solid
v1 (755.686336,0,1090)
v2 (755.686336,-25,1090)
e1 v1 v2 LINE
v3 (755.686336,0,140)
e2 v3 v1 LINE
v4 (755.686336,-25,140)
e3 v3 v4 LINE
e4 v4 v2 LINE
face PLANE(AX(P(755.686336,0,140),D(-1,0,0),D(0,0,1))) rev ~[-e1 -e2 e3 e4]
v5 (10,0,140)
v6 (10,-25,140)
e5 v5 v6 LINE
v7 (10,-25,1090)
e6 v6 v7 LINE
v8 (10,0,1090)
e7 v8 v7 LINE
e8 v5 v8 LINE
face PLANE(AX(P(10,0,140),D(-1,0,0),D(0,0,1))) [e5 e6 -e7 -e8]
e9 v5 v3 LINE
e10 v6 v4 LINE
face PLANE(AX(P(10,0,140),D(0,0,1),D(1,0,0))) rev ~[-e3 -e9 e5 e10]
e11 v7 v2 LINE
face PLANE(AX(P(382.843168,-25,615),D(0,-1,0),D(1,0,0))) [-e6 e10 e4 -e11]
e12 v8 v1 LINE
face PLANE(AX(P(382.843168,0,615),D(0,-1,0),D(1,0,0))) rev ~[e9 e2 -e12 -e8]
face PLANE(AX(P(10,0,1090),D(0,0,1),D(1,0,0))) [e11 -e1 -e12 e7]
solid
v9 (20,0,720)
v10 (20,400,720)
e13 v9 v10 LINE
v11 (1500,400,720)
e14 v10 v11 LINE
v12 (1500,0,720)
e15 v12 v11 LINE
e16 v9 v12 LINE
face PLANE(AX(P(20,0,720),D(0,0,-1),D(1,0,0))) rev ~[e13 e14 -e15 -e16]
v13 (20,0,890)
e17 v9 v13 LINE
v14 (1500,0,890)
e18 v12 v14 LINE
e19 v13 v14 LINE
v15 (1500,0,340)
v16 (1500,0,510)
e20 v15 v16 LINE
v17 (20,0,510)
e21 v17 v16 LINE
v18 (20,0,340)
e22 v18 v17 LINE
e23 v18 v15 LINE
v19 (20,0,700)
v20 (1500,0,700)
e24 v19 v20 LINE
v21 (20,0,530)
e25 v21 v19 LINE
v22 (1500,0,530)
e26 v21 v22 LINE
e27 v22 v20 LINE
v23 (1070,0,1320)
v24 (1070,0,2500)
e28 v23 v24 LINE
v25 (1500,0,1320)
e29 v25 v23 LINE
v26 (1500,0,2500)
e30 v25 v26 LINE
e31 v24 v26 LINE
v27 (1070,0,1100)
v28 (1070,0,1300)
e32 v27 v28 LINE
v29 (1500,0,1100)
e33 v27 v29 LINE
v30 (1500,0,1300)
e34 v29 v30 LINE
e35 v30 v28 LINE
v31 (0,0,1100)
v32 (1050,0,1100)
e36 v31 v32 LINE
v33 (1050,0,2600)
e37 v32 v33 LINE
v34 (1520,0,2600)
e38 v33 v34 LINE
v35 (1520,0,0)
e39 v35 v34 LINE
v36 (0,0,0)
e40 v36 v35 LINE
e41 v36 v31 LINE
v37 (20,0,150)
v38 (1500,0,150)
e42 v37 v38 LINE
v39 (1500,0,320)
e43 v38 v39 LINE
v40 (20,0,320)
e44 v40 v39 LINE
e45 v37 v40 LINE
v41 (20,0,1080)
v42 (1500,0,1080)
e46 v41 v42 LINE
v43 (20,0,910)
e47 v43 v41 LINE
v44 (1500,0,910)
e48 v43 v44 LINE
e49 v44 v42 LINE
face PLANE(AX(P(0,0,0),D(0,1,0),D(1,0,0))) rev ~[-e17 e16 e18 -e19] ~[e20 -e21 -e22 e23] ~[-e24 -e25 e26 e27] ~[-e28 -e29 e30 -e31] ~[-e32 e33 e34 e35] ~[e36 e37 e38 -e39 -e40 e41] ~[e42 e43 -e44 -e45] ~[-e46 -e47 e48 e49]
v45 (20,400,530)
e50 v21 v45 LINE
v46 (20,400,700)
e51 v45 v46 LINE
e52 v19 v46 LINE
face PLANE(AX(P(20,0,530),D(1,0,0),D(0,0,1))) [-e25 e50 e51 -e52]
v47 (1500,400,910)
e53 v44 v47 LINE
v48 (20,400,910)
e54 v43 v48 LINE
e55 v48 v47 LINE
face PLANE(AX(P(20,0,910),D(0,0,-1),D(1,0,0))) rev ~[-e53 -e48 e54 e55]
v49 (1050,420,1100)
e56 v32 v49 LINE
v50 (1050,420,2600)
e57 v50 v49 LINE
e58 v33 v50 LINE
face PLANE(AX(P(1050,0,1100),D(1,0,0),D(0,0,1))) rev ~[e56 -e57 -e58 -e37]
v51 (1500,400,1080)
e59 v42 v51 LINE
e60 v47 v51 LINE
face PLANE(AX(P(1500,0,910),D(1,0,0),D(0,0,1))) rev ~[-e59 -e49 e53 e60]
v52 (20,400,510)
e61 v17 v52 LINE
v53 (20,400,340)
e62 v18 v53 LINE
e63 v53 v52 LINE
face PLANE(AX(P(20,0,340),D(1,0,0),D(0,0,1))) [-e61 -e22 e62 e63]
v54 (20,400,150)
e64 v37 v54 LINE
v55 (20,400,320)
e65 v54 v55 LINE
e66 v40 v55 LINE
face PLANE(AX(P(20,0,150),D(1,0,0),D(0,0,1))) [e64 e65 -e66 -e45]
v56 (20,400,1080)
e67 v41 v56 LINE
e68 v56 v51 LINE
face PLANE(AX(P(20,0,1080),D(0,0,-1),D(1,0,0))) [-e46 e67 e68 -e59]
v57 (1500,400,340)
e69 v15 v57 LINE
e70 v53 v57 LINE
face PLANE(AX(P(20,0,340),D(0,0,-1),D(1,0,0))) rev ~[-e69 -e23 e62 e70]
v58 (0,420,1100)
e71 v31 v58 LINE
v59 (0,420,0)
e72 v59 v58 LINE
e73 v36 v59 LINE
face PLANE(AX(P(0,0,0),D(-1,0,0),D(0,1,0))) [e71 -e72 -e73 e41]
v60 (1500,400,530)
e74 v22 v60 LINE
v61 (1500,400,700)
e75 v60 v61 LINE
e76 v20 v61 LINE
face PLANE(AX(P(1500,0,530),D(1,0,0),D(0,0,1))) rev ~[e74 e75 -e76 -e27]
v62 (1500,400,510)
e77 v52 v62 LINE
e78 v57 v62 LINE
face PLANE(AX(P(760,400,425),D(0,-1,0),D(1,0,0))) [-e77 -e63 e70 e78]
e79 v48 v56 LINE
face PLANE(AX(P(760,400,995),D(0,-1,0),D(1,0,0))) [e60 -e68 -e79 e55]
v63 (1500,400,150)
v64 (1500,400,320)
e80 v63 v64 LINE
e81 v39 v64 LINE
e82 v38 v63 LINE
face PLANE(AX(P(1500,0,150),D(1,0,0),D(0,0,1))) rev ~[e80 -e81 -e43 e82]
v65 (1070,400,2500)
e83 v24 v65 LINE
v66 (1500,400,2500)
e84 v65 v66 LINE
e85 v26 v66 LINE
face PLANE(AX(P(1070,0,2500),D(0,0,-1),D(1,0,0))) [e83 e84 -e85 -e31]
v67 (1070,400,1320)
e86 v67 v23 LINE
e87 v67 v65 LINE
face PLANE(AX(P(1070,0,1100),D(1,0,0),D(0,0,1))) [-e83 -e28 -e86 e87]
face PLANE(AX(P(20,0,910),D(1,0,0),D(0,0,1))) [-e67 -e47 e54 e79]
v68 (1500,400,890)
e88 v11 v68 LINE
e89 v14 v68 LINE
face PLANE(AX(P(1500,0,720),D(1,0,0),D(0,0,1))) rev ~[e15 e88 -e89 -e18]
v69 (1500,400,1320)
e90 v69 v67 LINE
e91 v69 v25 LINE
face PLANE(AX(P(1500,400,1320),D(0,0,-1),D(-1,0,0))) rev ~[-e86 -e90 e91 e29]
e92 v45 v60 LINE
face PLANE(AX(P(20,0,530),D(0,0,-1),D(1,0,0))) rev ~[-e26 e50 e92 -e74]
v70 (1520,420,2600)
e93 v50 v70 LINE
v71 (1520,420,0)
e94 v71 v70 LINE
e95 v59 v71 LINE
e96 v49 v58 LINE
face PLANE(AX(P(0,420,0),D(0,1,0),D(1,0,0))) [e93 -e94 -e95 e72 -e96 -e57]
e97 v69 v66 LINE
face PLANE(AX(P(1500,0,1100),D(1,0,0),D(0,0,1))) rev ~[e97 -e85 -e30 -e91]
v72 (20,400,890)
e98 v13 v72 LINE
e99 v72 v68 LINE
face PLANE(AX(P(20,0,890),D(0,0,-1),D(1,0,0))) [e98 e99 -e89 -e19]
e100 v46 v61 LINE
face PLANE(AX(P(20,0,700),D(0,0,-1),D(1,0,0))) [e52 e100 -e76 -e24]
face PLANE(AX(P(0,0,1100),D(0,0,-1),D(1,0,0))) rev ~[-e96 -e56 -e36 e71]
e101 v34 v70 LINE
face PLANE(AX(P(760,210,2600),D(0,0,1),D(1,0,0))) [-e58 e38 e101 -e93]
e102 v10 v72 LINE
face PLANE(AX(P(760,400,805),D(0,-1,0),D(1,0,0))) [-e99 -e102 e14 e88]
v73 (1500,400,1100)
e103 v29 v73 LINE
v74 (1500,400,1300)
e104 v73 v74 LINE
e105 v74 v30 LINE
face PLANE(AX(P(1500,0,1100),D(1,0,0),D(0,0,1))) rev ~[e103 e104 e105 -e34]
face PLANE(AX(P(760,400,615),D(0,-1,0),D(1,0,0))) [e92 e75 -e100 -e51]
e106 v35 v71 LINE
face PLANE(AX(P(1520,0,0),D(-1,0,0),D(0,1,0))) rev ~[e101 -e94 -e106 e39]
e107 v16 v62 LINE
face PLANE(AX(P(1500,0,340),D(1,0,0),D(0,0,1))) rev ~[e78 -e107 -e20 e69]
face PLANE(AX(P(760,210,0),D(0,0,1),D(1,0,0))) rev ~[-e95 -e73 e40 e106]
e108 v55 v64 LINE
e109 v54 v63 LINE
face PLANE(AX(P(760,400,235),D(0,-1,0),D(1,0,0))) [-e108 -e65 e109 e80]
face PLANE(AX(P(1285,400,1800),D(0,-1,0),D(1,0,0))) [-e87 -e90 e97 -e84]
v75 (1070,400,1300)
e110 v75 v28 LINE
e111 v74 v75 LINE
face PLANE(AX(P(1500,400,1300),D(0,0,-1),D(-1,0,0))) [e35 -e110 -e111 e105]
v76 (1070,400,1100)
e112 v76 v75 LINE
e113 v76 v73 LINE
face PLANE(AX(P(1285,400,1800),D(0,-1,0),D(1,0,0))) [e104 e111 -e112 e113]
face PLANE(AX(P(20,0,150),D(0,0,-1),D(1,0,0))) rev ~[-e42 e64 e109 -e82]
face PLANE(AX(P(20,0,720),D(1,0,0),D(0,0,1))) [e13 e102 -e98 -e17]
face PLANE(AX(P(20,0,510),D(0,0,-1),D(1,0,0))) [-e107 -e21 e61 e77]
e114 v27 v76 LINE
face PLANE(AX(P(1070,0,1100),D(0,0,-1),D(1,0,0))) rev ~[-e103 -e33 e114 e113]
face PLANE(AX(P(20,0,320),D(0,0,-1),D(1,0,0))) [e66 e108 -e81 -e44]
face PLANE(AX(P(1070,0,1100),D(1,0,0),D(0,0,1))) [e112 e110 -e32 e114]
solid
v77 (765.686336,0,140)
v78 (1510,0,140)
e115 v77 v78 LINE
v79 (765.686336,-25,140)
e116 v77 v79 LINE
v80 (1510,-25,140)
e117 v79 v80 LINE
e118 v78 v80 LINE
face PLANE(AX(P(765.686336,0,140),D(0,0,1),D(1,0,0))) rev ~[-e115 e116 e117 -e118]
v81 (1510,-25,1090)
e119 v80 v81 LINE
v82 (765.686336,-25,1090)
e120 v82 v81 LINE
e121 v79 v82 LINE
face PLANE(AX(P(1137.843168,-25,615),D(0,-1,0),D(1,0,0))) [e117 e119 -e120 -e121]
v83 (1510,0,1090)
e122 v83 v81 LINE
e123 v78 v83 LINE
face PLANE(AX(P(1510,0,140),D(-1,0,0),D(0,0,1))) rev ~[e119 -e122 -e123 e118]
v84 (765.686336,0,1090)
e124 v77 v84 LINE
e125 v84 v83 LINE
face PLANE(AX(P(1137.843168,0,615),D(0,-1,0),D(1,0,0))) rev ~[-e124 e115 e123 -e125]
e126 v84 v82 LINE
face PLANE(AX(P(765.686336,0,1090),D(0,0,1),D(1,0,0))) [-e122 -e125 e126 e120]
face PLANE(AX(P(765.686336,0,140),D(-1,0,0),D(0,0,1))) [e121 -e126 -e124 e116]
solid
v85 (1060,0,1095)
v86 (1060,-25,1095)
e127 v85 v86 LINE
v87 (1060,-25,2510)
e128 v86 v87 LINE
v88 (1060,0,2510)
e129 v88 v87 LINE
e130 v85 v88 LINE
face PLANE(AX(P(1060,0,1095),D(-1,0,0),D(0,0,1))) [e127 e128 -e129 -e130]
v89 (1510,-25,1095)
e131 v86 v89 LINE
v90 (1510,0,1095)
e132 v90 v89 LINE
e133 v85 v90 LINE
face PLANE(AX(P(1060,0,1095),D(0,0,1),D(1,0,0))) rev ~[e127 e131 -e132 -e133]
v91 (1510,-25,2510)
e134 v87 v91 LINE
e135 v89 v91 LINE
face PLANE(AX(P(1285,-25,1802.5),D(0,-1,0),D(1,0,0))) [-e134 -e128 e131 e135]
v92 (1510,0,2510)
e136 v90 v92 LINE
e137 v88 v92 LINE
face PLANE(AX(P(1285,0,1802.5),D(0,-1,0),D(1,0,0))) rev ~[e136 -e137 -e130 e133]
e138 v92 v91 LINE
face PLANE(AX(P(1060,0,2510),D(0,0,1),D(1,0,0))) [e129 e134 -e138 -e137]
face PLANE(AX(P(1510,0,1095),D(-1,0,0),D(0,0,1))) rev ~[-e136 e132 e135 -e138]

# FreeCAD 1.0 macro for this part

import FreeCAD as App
import Part
import Sketcher
Q = App.Units.Quantity

doc = App.newDocument("Part")
body = doc.addObject("PartDesign::Body", "Body")

# Sketch on XY plane
sketch1 = body.newObject("Sketcher::SketchObject", "Sketch")
sketch1.AttachmentSupport = (doc.getObject("XY_Plane"), [""])
sketch1.MapMode = "FlatFace"
sketch1.addGeometry([
    Part.LineSegment(App.Vector(0, 420, 0), App.Vector(0, 0, 0)),
    Part.LineSegment(App.Vector(0, 0, 0), App.Vector(1520, 0, 0)),
    Part.LineSegment(App.Vector(1520, 0, 0), App.Vector(1520, 420, 0)),
    Part.LineSegment(App.Vector(1520, 420, 0), App.Vector(0, 420, 0)),
], False)
sketch1.addConstraint([
    Sketcher.Constraint("Coincident", 0, 2, 1, 1),
    Sketcher.Constraint("Coincident", 1, 2, 2, 1),
    Sketcher.Constraint("Coincident", 2, 2, 3, 1),
    Sketcher.Constraint("Coincident", 3, 2, 0, 1),
    Sketcher.Constraint("Vertical", 0),
    Sketcher.Constraint("Horizontal", 1),
    Sketcher.Constraint("Vertical", 2),
    Sketcher.Constraint("Horizontal", 3),
    Sketcher.Constraint("Coincident", 0, 2, -1, 1),
    Sketcher.Constraint("DistanceX", 1, 1, 1, 2, Q("1520 mm")),
    Sketcher.Constraint("DistanceY", 0, 2, 0, 1, Q("420 mm")),
])
pad1 = body.newObject("PartDesign::Pad", "Pad")
pad1.Profile = sketch1
pad1.Length = 2600

# Sketch on XZ plane
sketch2 = body.newObject("Sketcher::SketchObject", "Sketch001")
sketch2.AttachmentSupport = (doc.getObject("XZ_Plane"), [""])
sketch2.MapMode = "FlatFace"
sketch2.addGeometry([
    Part.LineSegment(App.Vector(0, 2600, 0), App.Vector(0, 1100, 0)),
    Part.LineSegment(App.Vector(0, 1100, 0), App.Vector(1050, 1100, 0)),
    Part.LineSegment(App.Vector(1050, 1100, 0), App.Vector(1050, 2600, 0)),
    Part.LineSegment(App.Vector(1050, 2600, 0), App.Vector(0, 2600, 0)),
], False)
sketch2.addConstraint([
    Sketcher.Constraint("Coincident", 0, 2, 1, 1),
    Sketcher.Constraint("Coincident", 1, 2, 2, 1),
    Sketcher.Constraint("Coincident", 2, 2, 3, 1),
    Sketcher.Constraint("Coincident", 3, 2, 0, 1),
    Sketcher.Constraint("Vertical", 0),
    Sketcher.Constraint("Horizontal", 1),
    Sketcher.Constraint("Vertical", 2),
    Sketcher.Constraint("Horizontal", 3),
    Sketcher.Constraint("PointOnObject", 0, 2, -2),
    Sketcher.Constraint("DistanceX", 1, 1, 1, 2, Q("1050 mm")),
    Sketcher.Constraint("DistanceY", 0, 2, 0, 1, Q("1500 mm")),
    Sketcher.Constraint("DistanceY", -1, 1, 0, 2, Q("1100 mm")),
])
pocket1 = body.newObject("PartDesign::Pocket", "Pocket")
pocket1.Profile = sketch2
pocket1.Type = "ThroughAll"

# Sketch on XZ plane
sketch3 = body.newObject("Sketcher::SketchObject", "Sketch002")
sketch3.AttachmentSupport = (doc.getObject("XZ_Plane"), [""])
sketch3.MapMode = "FlatFace"
sketch3.addGeometry([
    Part.LineSegment(App.Vector(1070, 2500, 0), App.Vector(1070, 1100, 0)),
    Part.LineSegment(App.Vector(1070, 1100, 0), App.Vector(1500, 1100, 0)),
    Part.LineSegment(App.Vector(1500, 1100, 0), App.Vector(1500, 2500, 0)),
    Part.LineSegment(App.Vector(1500, 2500, 0), App.Vector(1070, 2500, 0)),
], False)
sketch3.addConstraint([
    Sketcher.Constraint("Coincident", 0, 2, 1, 1),
    Sketcher.Constraint("Coincident", 1, 2, 2, 1),
    Sketcher.Constraint("Coincident", 2, 2, 3, 1),
    Sketcher.Constraint("Coincident", 3, 2, 0, 1),
    Sketcher.Constraint("Vertical", 0),
    Sketcher.Constraint("Horizontal", 1),
    Sketcher.Constraint("Vertical", 2),
    Sketcher.Constraint("Horizontal", 3),
    Sketcher.Constraint("DistanceX", 1, 1, 1, 2, Q("430 mm")),
    Sketcher.Constraint("DistanceY", 0, 2, 0, 1, Q("1400 mm")),
    Sketcher.Constraint("DistanceX", -1, 1, 0, 2, Q("1070 mm")),
    Sketcher.Constraint("DistanceY", -1, 1, 0, 2, Q("1100 mm")),
])
pocket2 = body.newObject("PartDesign::Pocket", "Pocket001")
pocket2.Profile = sketch3
pocket2.Length = 400

# Sketch on XZ plane
sketch4 = body.newObject("Sketcher::SketchObject", "Sketch003")
sketch4.AttachmentSupport = (doc.getObject("XZ_Plane"), [""])
sketch4.MapMode = "FlatFace"
sketch4.addGeometry([
    Part.LineSegment(App.Vector(20, 320, 0), App.Vector(20, 150, 0)),  # 0
    Part.LineSegment(App.Vector(20, 150, 0), App.Vector(1500, 150, 0)),  # 1
    Part.LineSegment(App.Vector(1500, 150, 0), App.Vector(1500, 320, 0)),  # 2
    Part.LineSegment(App.Vector(1500, 320, 0), App.Vector(20, 320, 0)),  # 3
    Part.LineSegment(App.Vector(20, 1080, 0), App.Vector(20, 910, 0)),  # 4
    Part.LineSegment(App.Vector(20, 910, 0), App.Vector(1500, 910, 0)),  # 5
    Part.LineSegment(App.Vector(1500, 910, 0), App.Vector(1500, 1080, 0)),  # 6
    Part.LineSegment(App.Vector(1500, 1080, 0), App.Vector(20, 1080, 0)),  # 7
    Part.LineSegment(App.Vector(20, 510, 0), App.Vector(20, 340, 0)),  # 8
    Part.LineSegment(App.Vector(20, 340, 0), App.Vector(1500, 340, 0)),  # 9
    Part.LineSegment(App.Vector(1500, 340, 0), App.Vector(1500, 510, 0)),  # 10
    Part.LineSegment(App.Vector(1500, 510, 0), App.Vector(20, 510, 0)),  # 11
    Part.LineSegment(App.Vector(20, 700, 0), App.Vector(20, 530, 0)),  # 12
    Part.LineSegment(App.Vector(20, 530, 0), App.Vector(1500, 530, 0)),  # 13
    Part.LineSegment(App.Vector(1500, 530, 0), App.Vector(1500, 700, 0)),  # 14
    Part.LineSegment(App.Vector(1500, 700, 0), App.Vector(20, 700, 0)),  # 15
    Part.LineSegment(App.Vector(20, 890, 0), App.Vector(20, 720, 0)),  # 16
    Part.LineSegment(App.Vector(20, 720, 0), App.Vector(1500, 720, 0)),  # 17
    Part.LineSegment(App.Vector(1500, 720, 0), App.Vector(1500, 890, 0)),  # 18
    Part.LineSegment(App.Vector(1500, 890, 0), App.Vector(20, 890, 0)),  # 19
], False)
sketch4.addConstraint([
    Sketcher.Constraint("Coincident", 0, 2, 1, 1),
    Sketcher.Constraint("Coincident", 1, 2, 2, 1),
    Sketcher.Constraint("Coincident", 2, 2, 3, 1),
    Sketcher.Constraint("Coincident", 3, 2, 0, 1),
    Sketcher.Constraint("Coincident", 4, 2, 5, 1),
    Sketcher.Constraint("Coincident", 5, 2, 6, 1),
    Sketcher.Constraint("Coincident", 6, 2, 7, 1),
    Sketcher.Constraint("Coincident", 7, 2, 4, 1),
    Sketcher.Constraint("Coincident", 8, 2, 9, 1),
    Sketcher.Constraint("Coincident", 9, 2, 10, 1),
    Sketcher.Constraint("Coincident", 10, 2, 11, 1),
    Sketcher.Constraint("Coincident", 11, 2, 8, 1),
    Sketcher.Constraint("Coincident", 12, 2, 13, 1),
    Sketcher.Constraint("Coincident", 13, 2, 14, 1),
    Sketcher.Constraint("Coincident", 14, 2, 15, 1),
    Sketcher.Constraint("Coincident", 15, 2, 12, 1),
    Sketcher.Constraint("Coincident", 16, 2, 17, 1),
    Sketcher.Constraint("Coincident", 17, 2, 18, 1),
    Sketcher.Constraint("Coincident", 18, 2, 19, 1),
    Sketcher.Constraint("Coincident", 19, 2, 16, 1),
    Sketcher.Constraint("Vertical", 0),
    Sketcher.Constraint("Horizontal", 1),
    Sketcher.Constraint("Vertical", 2),
    Sketcher.Constraint("Horizontal", 3),
    Sketcher.Constraint("Vertical", 4),
    Sketcher.Constraint("Horizontal", 5),
    Sketcher.Constraint("Vertical", 6),
    Sketcher.Constraint("Horizontal", 7),
    Sketcher.Constraint("Vertical", 8),
    Sketcher.Constraint("Horizontal", 9),
    Sketcher.Constraint("Vertical", 10),
    Sketcher.Constraint("Horizontal", 11),
    Sketcher.Constraint("Vertical", 12),
    Sketcher.Constraint("Horizontal", 13),
    Sketcher.Constraint("Vertical", 14),
    Sketcher.Constraint("Horizontal", 15),
    Sketcher.Constraint("Vertical", 16),
    Sketcher.Constraint("Horizontal", 17),
    Sketcher.Constraint("Vertical", 18),
    Sketcher.Constraint("Horizontal", 19),
    Sketcher.Constraint("Vertical", 3, 2, 4, 2),
    Sketcher.Constraint("Vertical", 2, 2, 5, 2),
    Sketcher.Constraint("Vertical", 7, 2, 8, 2),
    Sketcher.Constraint("Vertical", 6, 2, 9, 2),
    Sketcher.Constraint("Vertical", 11, 2, 12, 2),
    Sketcher.Constraint("Vertical", 10, 2, 13, 2),
    Sketcher.Constraint("Vertical", 15, 2, 16, 2),
    Sketcher.Constraint("Vertical", 14, 2, 17, 2),
    Sketcher.Constraint("Equal", 2, 4),
    Sketcher.Constraint("Equal", 6, 8),
    Sketcher.Constraint("Equal", 10, 12),
    Sketcher.Constraint("Equal", 14, 16),
    Sketcher.Constraint("DistanceX", 1, 1, 1, 2, Q("1480 mm")),
    Sketcher.Constraint("DistanceY", 0, 2, 0, 1, Q("170 mm")),
    Sketcher.Constraint("DistanceX", -1, 1, 0, 2, Q("20 mm")),
    Sketcher.Constraint("DistanceY", -1, 1, 0, 2, Q("150 mm")),
    Sketcher.Constraint("DistanceY", -1, 1, 4, 2, Q("910 mm")),
    Sketcher.Constraint("DistanceY", -1, 1, 8, 2, Q("340 mm")),
    Sketcher.Constraint("DistanceY", -1, 1, 12, 2, Q("530 mm")),
    Sketcher.Constraint("DistanceY", -1, 1, 16, 2, Q("720 mm")),
])
pocket3 = body.newObject("PartDesign::Pocket", "Pocket002")
pocket3.Profile = sketch4
pocket3.Length = 400

# Sketch on XZ plane
sketch5 = body.newObject("Sketcher::SketchObject", "Sketch004")
sketch5.AttachmentSupport = (doc.getObject("XZ_Plane"), [""])
sketch5.MapMode = "FlatFace"
sketch5.AttachmentOffset = App.Placement(App.Vector(0, 0, -400), App.Rotation())
sketch5.addGeometry([
    Part.LineSegment(App.Vector(1500, 1320, 0), App.Vector(1500, 1300, 0)),
    Part.LineSegment(App.Vector(1500, 1300, 0), App.Vector(1070, 1300, 0)),
    Part.LineSegment(App.Vector(1070, 1300, 0), App.Vector(1070, 1320, 0)),
    Part.LineSegment(App.Vector(1070, 1320, 0), App.Vector(1500, 1320, 0)),
], False)
sketch5.addConstraint([
    Sketcher.Constraint("Coincident", 0, 2, 1, 1),
    Sketcher.Constraint("Coincident", 1, 2, 2, 1),
    Sketcher.Constraint("Coincident", 2, 2, 3, 1),
    Sketcher.Constraint("Coincident", 3, 2, 0, 1),
    Sketcher.Constraint("Vertical", 0),
    Sketcher.Constraint("Horizontal", 1),
    Sketcher.Constraint("Vertical", 2),
    Sketcher.Constraint("Horizontal", 3),
    Sketcher.Constraint("DistanceX", 1, 2, 1, 1, Q("430 mm")),
    Sketcher.Constraint("DistanceY", 0, 2, 0, 1, Q("20 mm")),
    Sketcher.Constraint("DistanceX", -1, 1, 0, 2, Q("1500 mm")),
    Sketcher.Constraint("DistanceY", -1, 1, 0, 2, Q("1300 mm")),
])
pad2 = body.newObject("PartDesign::Pad", "Pad001")
pad2.Profile = sketch5
pad2.Length = 400
body2 = doc.addObject("PartDesign::Body", "Body001")

# Sketch on XZ plane
sketch6 = body2.newObject("Sketcher::SketchObject", "Sketch005")
sketch6.AttachmentSupport = (doc.getObject("XZ_Plane001"), [""])
sketch6.MapMode = "FlatFace"
sketch6.addGeometry([
    Part.LineSegment(App.Vector(10, 1090, 0), App.Vector(10, 140, 0)),
    Part.LineSegment(App.Vector(10, 140, 0), App.Vector(756, 140, 0)),
    Part.LineSegment(App.Vector(756, 140, 0), App.Vector(756, 1090, 0)),
    Part.LineSegment(App.Vector(756, 1090, 0), App.Vector(10, 1090, 0)),
], False)
sketch6.addConstraint([
    Sketcher.Constraint("Coincident", 0, 2, 1, 1),
    Sketcher.Constraint("Coincident", 1, 2, 2, 1),
    Sketcher.Constraint("Coincident", 2, 2, 3, 1),
    Sketcher.Constraint("Coincident", 3, 2, 0, 1),
    Sketcher.Constraint("Vertical", 0),
    Sketcher.Constraint("Horizontal", 1),
    Sketcher.Constraint("Vertical", 2),
    Sketcher.Constraint("Horizontal", 3),
    Sketcher.Constraint("DistanceY", 0, 2, 0, 1, Q("950 mm")),
    Sketcher.Constraint("DistanceX", -1, 1, 0, 2, Q("10 mm")),
    Sketcher.Constraint("DistanceY", -1, 1, 0, 2, Q("140 mm")),
    Sketcher.Constraint("DistanceX", 1, 1, 1, 2, Q("745.686336 mm")),
])
pad3 = body2.newObject("PartDesign::Pad", "Pad002")
pad3.Profile = sketch6
pad3.Length = 25
body3 = doc.addObject("PartDesign::Body", "Body002")

# Sketch on XZ plane
sketch7 = body3.newObject("Sketcher::SketchObject", "Sketch006")
sketch7.AttachmentSupport = (doc.getObject("XZ_Plane002"), [""])
sketch7.MapMode = "FlatFace"
sketch7.addGeometry([
    Part.LineSegment(App.Vector(766, 1090, 0), App.Vector(766, 140, 0)),
    Part.LineSegment(App.Vector(766, 140, 0), App.Vector(1510, 140, 0)),
    Part.LineSegment(App.Vector(1510, 140, 0), App.Vector(1510, 1090, 0)),
    Part.LineSegment(App.Vector(1510, 1090, 0), App.Vector(766, 1090, 0)),
], False)
sketch7.addConstraint([
    Sketcher.Constraint("Coincident", 0, 2, 1, 1),
    Sketcher.Constraint("Coincident", 1, 2, 2, 1),
    Sketcher.Constraint("Coincident", 2, 2, 3, 1),
    Sketcher.Constraint("Coincident", 3, 2, 0, 1),
    Sketcher.Constraint("Vertical", 0),
    Sketcher.Constraint("Horizontal", 1),
    Sketcher.Constraint("Vertical", 2),
    Sketcher.Constraint("Horizontal", 3),
    Sketcher.Constraint("DistanceY", 0, 2, 0, 1, Q("950 mm")),
    Sketcher.Constraint("DistanceY", -1, 1, 0, 2, Q("140 mm")),
    Sketcher.Constraint("DistanceX", -1, 1, 1, 2, Q("1510 mm")),
    Sketcher.Constraint("DistanceX", 1, 1, 1, 2, Q("744.313664 mm")),
])
pad4 = body3.newObject("PartDesign::Pad", "Pad003")
pad4.Profile = sketch7
pad4.Length = 25
body4 = doc.addObject("PartDesign::Body", "Body003")

# Sketch on XZ plane
sketch8 = body4.newObject("Sketcher::SketchObject", "Sketch007")
sketch8.AttachmentSupport = (doc.getObject("XZ_Plane003"), [""])
sketch8.MapMode = "FlatFace"
sketch8.addGeometry([
    Part.LineSegment(App.Vector(1060, 2510, 0), App.Vector(1060, 1095, 0)),
    Part.LineSegment(App.Vector(1060, 1095, 0), App.Vector(1510, 1095, 0)),
    Part.LineSegment(App.Vector(1510, 1095, 0), App.Vector(1510, 2510, 0)),
    Part.LineSegment(App.Vector(1510, 2510, 0), App.Vector(1060, 2510, 0)),
], False)
sketch8.addConstraint([
    Sketcher.Constraint("Coincident", 0, 2, 1, 1),
    Sketcher.Constraint("Coincident", 1, 2, 2, 1),
    Sketcher.Constraint("Coincident", 2, 2, 3, 1),
    Sketcher.Constraint("Coincident", 3, 2, 0, 1),
    Sketcher.Constraint("Vertical", 0),
    Sketcher.Constraint("Horizontal", 1),
    Sketcher.Constraint("Vertical", 2),
    Sketcher.Constraint("Horizontal", 3),
    Sketcher.Constraint("DistanceX", 1, 1, 1, 2, Q("450 mm")),
    Sketcher.Constraint("DistanceY", 0, 2, 0, 1, Q("1415 mm")),
    Sketcher.Constraint("DistanceX", -1, 1, 0, 2, Q("1060 mm")),
    Sketcher.Constraint("DistanceY", -1, 1, 0, 2, Q("1095 mm")),
])
pad5 = body4.newObject("PartDesign::Pad", "Pad004")
pad5.Profile = sketch8
pad5.Length = 25

doc.recompute()
